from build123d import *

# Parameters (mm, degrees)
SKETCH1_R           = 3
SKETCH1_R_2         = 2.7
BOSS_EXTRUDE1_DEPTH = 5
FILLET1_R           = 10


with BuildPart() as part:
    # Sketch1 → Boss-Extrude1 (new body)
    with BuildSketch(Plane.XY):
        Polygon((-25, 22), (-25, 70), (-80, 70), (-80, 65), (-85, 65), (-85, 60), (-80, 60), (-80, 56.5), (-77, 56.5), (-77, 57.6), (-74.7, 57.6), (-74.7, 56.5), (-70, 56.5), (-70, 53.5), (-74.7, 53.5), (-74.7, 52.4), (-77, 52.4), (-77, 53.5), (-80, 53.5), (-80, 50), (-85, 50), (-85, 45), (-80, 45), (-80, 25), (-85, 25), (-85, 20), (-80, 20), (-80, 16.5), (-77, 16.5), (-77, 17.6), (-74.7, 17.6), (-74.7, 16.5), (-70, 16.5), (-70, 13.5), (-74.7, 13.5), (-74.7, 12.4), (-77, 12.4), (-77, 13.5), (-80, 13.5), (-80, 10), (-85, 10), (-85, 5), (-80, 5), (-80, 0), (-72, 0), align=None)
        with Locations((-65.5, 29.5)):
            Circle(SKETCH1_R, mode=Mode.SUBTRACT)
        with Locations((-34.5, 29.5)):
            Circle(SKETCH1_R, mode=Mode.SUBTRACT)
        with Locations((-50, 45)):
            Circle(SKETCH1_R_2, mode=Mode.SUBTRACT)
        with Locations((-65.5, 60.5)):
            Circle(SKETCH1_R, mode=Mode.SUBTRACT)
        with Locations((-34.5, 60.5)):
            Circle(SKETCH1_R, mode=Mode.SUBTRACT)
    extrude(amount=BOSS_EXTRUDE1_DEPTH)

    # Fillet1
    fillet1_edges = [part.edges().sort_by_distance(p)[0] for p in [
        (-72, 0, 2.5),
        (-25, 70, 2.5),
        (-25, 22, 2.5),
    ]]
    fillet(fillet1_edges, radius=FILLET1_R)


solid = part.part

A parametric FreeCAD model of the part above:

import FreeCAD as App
import Part
import Sketcher

V = App.Vector
Q = App.Units.Quantity


def edges_at(feature, points):
    """Names of the edges that pass closest to the given points."""
    edges = feature.Shape.Edges
    near = lambda p: min(range(len(edges)), key=lambda i: edges[i].distToShape(Part.Vertex(*p))[0])
    return sorted({f"Edge{near(p) + 1}" for p in points})

doc = App.newDocument("Part")
body = doc.addObject("PartDesign::Body", "Body")

sketch1 = body.newObject("Sketcher::SketchObject", "Sketch")
sketch1.AttachmentSupport = (doc.getObject("XY_Plane"), [""])
sketch1.MapMode = "FlatFace"
sketch1.addGeometry(Part.LineSegment(V(-25, 22, 0), V(-25, 70, 0)), False)
sketch1.addGeometry(Part.LineSegment(V(-25, 70, 0), V(-80, 70, 0)), False)
sketch1.addGeometry(Part.LineSegment(V(-80, 70, 0), V(-80, 65, 0)), False)
sketch1.addGeometry(Part.LineSegment(V(-80, 65, 0), V(-85, 65, 0)), False)
sketch1.addGeometry(Part.LineSegment(V(-85, 65, 0), V(-85, 60, 0)), False)
sketch1.addGeometry(Part.LineSegment(V(-85, 60, 0), V(-80, 60, 0)), False)
sketch1.addGeometry(Part.LineSegment(V(-80, 60, 0), V(-80, 56.5, 0)), False)
sketch1.addGeometry(Part.LineSegment(V(-80, 56.5, 0), V(-77, 56.5, 0)), False)
sketch1.addGeometry(Part.LineSegment(V(-77, 56.5, 0), V(-77, 57.6, 0)), False)
sketch1.addGeometry(Part.LineSegment(V(-77, 57.6, 0), V(-74.7, 57.6, 0)), False)
sketch1.addGeometry(Part.LineSegment(V(-74.7, 57.6, 0), V(-74.7, 56.5, 0)), False)
sketch1.addGeometry(Part.LineSegment(V(-74.7, 56.5, 0), V(-70, 56.5, 0)), False)
sketch1.addGeometry(Part.LineSegment(V(-70, 56.5, 0), V(-70, 53.5, 0)), False)
sketch1.addGeometry(Part.LineSegment(V(-70, 53.5, 0), V(-74.7, 53.5, 0)), False)
sketch1.addGeometry(Part.LineSegment(V(-74.7, 53.5, 0), V(-74.7, 52.4, 0)), False)
sketch1.addGeometry(Part.LineSegment(V(-74.7, 52.4, 0), V(-77, 52.4, 0)), False)
sketch1.addGeometry(Part.LineSegment(V(-77, 52.4, 0), V(-77, 53.5, 0)), False)
sketch1.addGeometry(Part.LineSegment(V(-77, 53.5, 0), V(-80, 53.5, 0)), False)
sketch1.addGeometry(Part.LineSegment(V(-80, 53.5, 0), V(-80, 50, 0)), False)
sketch1.addGeometry(Part.LineSegment(V(-80, 50, 0), V(-85, 50, 0)), False)
sketch1.addGeometry(Part.LineSegment(V(-85, 50, 0), V(-85, 45, 0)), False)
sketch1.addGeometry(Part.LineSegment(V(-85, 45, 0), V(-80, 45, 0)), False)
sketch1.addGeometry(Part.LineSegment(V(-80, 45, 0), V(-80, 25, 0)), False)
sketch1.addGeometry(Part.LineSegment(V(-80, 25, 0), V(-85, 25, 0)), False)
sketch1.addGeometry(Part.LineSegment(V(-85, 25, 0), V(-85, 20, 0)), False)
sketch1.addGeometry(Part.LineSegment(V(-85, 20, 0), V(-80, 20, 0)), False)
sketch1.addGeometry(Part.LineSegment(V(-80, 20, 0), V(-80, 16.5, 0)), False)
sketch1.addGeometry(Part.LineSegment(V(-80, 16.5, 0), V(-77, 16.5, 0)), False)
sketch1.addGeometry(Part.LineSegment(V(-77, 16.5, 0), V(-77, 17.6, 0)), False)
sketch1.addGeometry(Part.LineSegment(V(-77, 17.6, 0), V(-74.7, 17.6, 0)), False)
sketch1.addGeometry(Part.LineSegment(V(-74.7, 17.6, 0), V(-74.7, 16.5, 0)), False)
sketch1.addGeometry(Part.LineSegment(V(-74.7, 16.5, 0), V(-70, 16.5, 0)), False)
sketch1.addGeometry(Part.LineSegment(V(-70, 16.5, 0), V(-70, 13.5, 0)), False)
sketch1.addGeometry(Part.LineSegment(V(-70, 13.5, 0), V(-74.7, 13.5, 0)), False)
sketch1.addGeometry(Part.LineSegment(V(-74.7, 13.5, 0), V(-74.7, 12.4, 0)), False)
sketch1.addGeometry(Part.LineSegment(V(-74.7, 12.4, 0), V(-77, 12.4, 0)), False)
sketch1.addGeometry(Part.LineSegment(V(-77, 12.4, 0), V(-77, 13.5, 0)), False)
sketch1.addGeometry(Part.LineSegment(V(-77, 13.5, 0), V(-80, 13.5, 0)), False)
sketch1.addGeometry(Part.LineSegment(V(-80, 13.5, 0), V(-80, 10, 0)), False)
sketch1.addGeometry(Part.LineSegment(V(-80, 10, 0), V(-85, 10, 0)), False)
sketch1.addGeometry(Part.LineSegment(V(-85, 10, 0), V(-85, 5, 0)), False)
sketch1.addGeometry(Part.LineSegment(V(-85, 5, 0), V(-80, 5, 0)), False)
sketch1.addGeometry(Part.LineSegment(V(-80, 5, 0), V(-80, 0, 0)), False)
sketch1.addGeometry(Part.LineSegment(V(-80, 0, 0), V(-72, 0, 0)), False)
sketch1.addGeometry(Part.LineSegment(V(-72, 0, 0), V(-25, 22, 0)), False)
sketch1.addGeometry(Part.Circle(V(-65.5, 29.5, 0), V(0, 0, 1), 3), False)
sketch1.addGeometry(Part.Circle(V(-34.5, 29.5, 0), V(0, 0, 1), 3), False)
sketch1.addGeometry(Part.Circle(V(-65.5, 60.5, 0), V(0, 0, 1), 3), False)
sketch1.addGeometry(Part.Circle(V(-50, 45, 0), V(0, 0, 1), 2.7), False)
sketch1.addGeometry(Part.Circle(V(-34.5, 60.5, 0), V(0, 0, 1), 3), False)
sketch1.addConstraint(Sketcher.Constraint("Coincident", 0, 2, 1, 1))
sketch1.addConstraint(Sketcher.Constraint("Coincident", 1, 2, 2, 1))
sketch1.addConstraint(Sketcher.Constraint("Coincident", 2, 2, 3, 1))
sketch1.addConstraint(Sketcher.Constraint("Coincident", 3, 2, 4, 1))
sketch1.addConstraint(Sketcher.Constraint("Coincident", 4, 2, 5, 1))
sketch1.addConstraint(Sketcher.Constraint("Coincident", 5, 2, 6, 1))
sketch1.addConstraint(Sketcher.Constraint("Coincident", 6, 2, 7, 1))
sketch1.addConstraint(Sketcher.Constraint("Coincident", 7, 2, 8, 1))
sketch1.addConstraint(Sketcher.Constraint("Coincident", 8, 2, 9, 1))
sketch1.addConstraint(Sketcher.Constraint("Coincident", 9, 2, 10, 1))
sketch1.addConstraint(Sketcher.Constraint("Coincident", 10, 2, 11, 1))
sketch1.addConstraint(Sketcher.Constraint("Coincident", 11, 2, 12, 1))
sketch1.addConstraint(Sketcher.Constraint("Coincident", 12, 2, 13, 1))
sketch1.addConstraint(Sketcher.Constraint("Coincident", 13, 2, 14, 1))
sketch1.addConstraint(Sketcher.Constraint("Coincident", 14, 2, 15, 1))
sketch1.addConstraint(Sketcher.Constraint("Coincident", 15, 2, 16, 1))
sketch1.addConstraint(Sketcher.Constraint("Coincident", 16, 2, 17, 1))
sketch1.addConstraint(Sketcher.Constraint("Coincident", 17, 2, 18, 1))
sketch1.addConstraint(Sketcher.Constraint("Coincident", 18, 2, 19, 1))
sketch1.addConstraint(Sketcher.Constraint("Coincident", 19, 2, 20, 1))
sketch1.addConstraint(Sketcher.Constraint("Coincident", 20, 2, 21, 1))
sketch1.addConstraint(Sketcher.Constraint("Coincident", 21, 2, 22, 1))
sketch1.addConstraint(Sketcher.Constraint("Coincident", 22, 2, 23, 1))
sketch1.addConstraint(Sketcher.Constraint("Coincident", 23, 2, 24, 1))
sketch1.addConstraint(Sketcher.Constraint("Coincident", 24, 2, 25, 1))
sketch1.addConstraint(Sketcher.Constraint("Coincident", 25, 2, 26, 1))
sketch1.addConstraint(Sketcher.Constraint("Coincident", 26, 2, 27, 1))
sketch1.addConstraint(Sketcher.Constraint("Coincident", 27, 2, 28, 1))
sketch1.addConstraint(Sketcher.Constraint("Coincident", 28, 2, 29, 1))
sketch1.addConstraint(Sketcher.Constraint("Coincident", 29, 2, 30, 1))
sketch1.addConstraint(Sketcher.Constraint("Coincident", 30, 2, 31, 1))
sketch1.addConstraint(Sketcher.Constraint("Coincident", 31, 2, 32, 1))
sketch1.addConstraint(Sketcher.Constraint("Coincident", 32, 2, 33, 1))
sketch1.addConstraint(Sketcher.Constraint("Coincident", 33, 2, 34, 1))
sketch1.addConstraint(Sketcher.Constraint("Coincident", 34, 2, 35, 1))
sketch1.addConstraint(Sketcher.Constraint("Coincident", 35, 2, 36, 1))
sketch1.addConstraint(Sketcher.Constraint("Coincident", 36, 2, 37, 1))
sketch1.addConstraint(Sketcher.Constraint("Coincident", 37, 2, 38, 1))
sketch1.addConstraint(Sketcher.Constraint("Coincident", 38, 2, 39, 1))
sketch1.addConstraint(Sketcher.Constraint("Coincident", 39, 2, 40, 1))
sketch1.addConstraint(Sketcher.Constraint("Coincident", 40, 2, 41, 1))
sketch1.addConstraint(Sketcher.Constraint("Coincident", 41, 2, 42, 1))
sketch1.addConstraint(Sketcher.Constraint("Coincident", 42, 2, 43, 1))
sketch1.addConstraint(Sketcher.Constraint("Coincident", 43, 2, 44, 1))
sketch1.addConstraint(Sketcher.Constraint("Coincident", 44, 2, 0, 1))
sketch1.addConstraint(Sketcher.Constraint("Vertical", 0))
sketch1.addConstraint(Sketcher.Constraint("Horizontal", 1))
sketch1.addConstraint(Sketcher.Constraint("Vertical", 2))
sketch1.addConstraint(Sketcher.Constraint("Horizontal", 3))
sketch1.addConstraint(Sketcher.Constraint("Vertical", 4))
sketch1.addConstraint(Sketcher.Constraint("Horizontal", 5))
sketch1.addConstraint(Sketcher.Constraint("Vertical", 6))
sketch1.addConstraint(Sketcher.Constraint("Horizontal", 7))
sketch1.addConstraint(Sketcher.Constraint("Vertical", 8))
sketch1.addConstraint(Sketcher.Constraint("Horizontal", 9))
sketch1.addConstraint(Sketcher.Constraint("Vertical", 10))
sketch1.addConstraint(Sketcher.Constraint("Horizontal", 11))
sketch1.addConstraint(Sketcher.Constraint("Vertical", 12))
sketch1.addConstraint(Sketcher.Constraint("Horizontal", 13))
sketch1.addConstraint(Sketcher.Constraint("Vertical", 14))
sketch1.addConstraint(Sketcher.Constraint("Horizontal", 15))
sketch1.addConstraint(Sketcher.Constraint("Vertical", 16))
sketch1.addConstraint(Sketcher.Constraint("Horizontal", 17))
sketch1.addConstraint(Sketcher.Constraint("Vertical", 18))
sketch1.addConstraint(Sketcher.Constraint("Horizontal", 19))
sketch1.addConstraint(Sketcher.Constraint("Vertical", 20))
sketch1.addConstraint(Sketcher.Constraint("Horizontal", 21))
sketch1.addConstraint(Sketcher.Constraint("Vertical", 22))
sketch1.addConstraint(Sketcher.Constraint("Horizontal", 23))
sketch1.addConstraint(Sketcher.Constraint("Vertical", 24))
sketch1.addConstraint(Sketcher.Constraint("Horizontal", 25))
sketch1.addConstraint(Sketcher.Constraint("Vertical", 26))
sketch1.addConstraint(Sketcher.Constraint("Horizontal", 27))
sketch1.addConstraint(Sketcher.Constraint("Vertical", 28))
sketch1.addConstraint(Sketcher.Constraint("Horizontal", 29))
sketch1.addConstraint(Sketcher.Constraint("Vertical", 30))
sketch1.addConstraint(Sketcher.Constraint("Horizontal", 31))
sketch1.addConstraint(Sketcher.Constraint("Vertical", 32))
sketch1.addConstraint(Sketcher.Constraint("Horizontal", 33))
sketch1.addConstraint(Sketcher.Constraint("Vertical", 34))
sketch1.addConstraint(Sketcher.Constraint("Horizontal", 35))
sketch1.addConstraint(Sketcher.Constraint("Vertical", 36))
sketch1.addConstraint(Sketcher.Constraint("Horizontal", 37))
sketch1.addConstraint(Sketcher.Constraint("Vertical", 38))
sketch1.addConstraint(Sketcher.Constraint("Horizontal", 39))
sketch1.addConstraint(Sketcher.Constraint("Vertical", 40))
sketch1.addConstraint(Sketcher.Constraint("Horizontal", 41))
sketch1.addConstraint(Sketcher.Constraint("Vertical", 42))
sketch1.addConstraint(Sketcher.Constraint("Horizontal", 43))
sketch1.addConstraint(Sketcher.Constraint("Equal", 45, 46))
sketch1.addConstraint(Sketcher.Constraint("Equal", 46, 47))
sketch1.addConstraint(Sketcher.Constraint("Equal", 47, 49))
sketch1.addConstraint(Sketcher.Constraint("PointOnObject", 42, 2, -1))
sketch1.addConstraint(Sketcher.Constraint("Horizontal", 45, 3, 46, 3))
sketch1.addConstraint(Sketcher.Constraint("Horizontal", 47, 3, 49, 3))
sketch1.addConstraint(Sketcher.Constraint("Horizontal", 7, 2, 10, 2))
sketch1.addConstraint(Sketcher.Constraint("Horizontal", 13, 2, 16, 2))
sketch1.addConstraint(Sketcher.Constraint("Horizontal", 48, 3, 20, 2))
sketch1.addConstraint(Sketcher.Constraint("Horizontal", 27, 2, 30, 2))
sketch1.addConstraint(Sketcher.Constraint("Horizontal", 33, 2, 36, 2))
sketch1.addConstraint(Sketcher.Constraint("Vertical", 45, 3, 47, 3))
sketch1.addConstraint(Sketcher.Constraint("Vertical", 46, 3, 49, 3))
sketch1.addConstraint(Sketcher.Constraint("Vertical", 2, 2, 5, 2))
sketch1.addConstraint(Sketcher.Constraint("Vertical", 10, 2, 13, 2))
sketch1.addConstraint(Sketcher.Constraint("Vertical", 8, 2, 15, 2))
sketch1.addConstraint(Sketcher.Constraint("Vertical", 6, 2, 17, 2))
sketch1.addConstraint(Sketcher.Constraint("Vertical", 4, 2, 19, 2))
sketch1.addConstraint(Sketcher.Constraint("Vertical", 18, 2, 21, 2))
sketch1.addConstraint(Sketcher.Constraint("Vertical", 20, 2, 23, 2))
sketch1.addConstraint(Sketcher.Constraint("Vertical", 22, 2, 25, 2))
sketch1.addConstraint(Sketcher.Constraint("Vertical", 16, 2, 27, 2))
sketch1.addConstraint(Sketcher.Constraint("Vertical", 14, 2, 29, 2))
sketch1.addConstraint(Sketcher.Constraint("Vertical", 12, 2, 31, 2))
sketch1.addConstraint(Sketcher.Constraint("Vertical", 30, 2, 33, 2))
sketch1.addConstraint(Sketcher.Constraint("Vertical", 28, 2, 35, 2))
sketch1.addConstraint(Sketcher.Constraint("Vertical", 26, 2, 37, 2))
sketch1.addConstraint(Sketcher.Constraint("Vertical", 24, 2, 39, 2))
sketch1.addConstraint(Sketcher.Constraint("Vertical", 38, 2, 41, 2))
sketch1.addConstraint(Sketcher.Constraint("Equal", 41, 2))
sketch1.addConstraint(Sketcher.Constraint("Equal", 2, 4))
sketch1.addConstraint(Sketcher.Constraint("Equal", 37, 12))
sketch1.addConstraint(Sketcher.Constraint("Equal", 10, 14))
sketch1.addConstraint(Sketcher.Constraint("Equal", 6, 18))
sketch1.addConstraint(Sketcher.Constraint("Equal", 4, 20))
sketch1.addConstraint(Sketcher.Constraint("Equal", 20, 24))
sketch1.addConstraint(Sketcher.Constraint("Equal", 18, 26))
sketch1.addConstraint(Sketcher.Constraint("Equal", 16, 28))
sketch1.addConstraint(Sketcher.Constraint("Equal", 12, 32))
sketch1.addConstraint(Sketcher.Constraint("Equal", 30, 34))
sketch1.addConstraint(Sketcher.Constraint("Equal", 26, 38))
sketch1.addConstraint(Sketcher.Constraint("Equal", 24, 40))
sketch1.addConstraint(Sketcher.Constraint("Equal", 40, 42))
sketch1.addConstraint(Sketcher.Constraint("Diameter", 45, Q("6 mm")))
sketch1.addConstraint(Sketcher.Constraint("Diameter", 48, Q("5.4 mm")))
sketch1.addConstraint(Sketcher.Constraint("DistanceX", 1, 2, 1, 1, Q("55 mm")))
sketch1.addConstraint(Sketcher.Constraint("DistanceX", 3, 2, 3, 1, Q("5 mm")))
sketch1.addConstraint(Sketcher.Constraint("DistanceX", 7, 1, 7, 2, Q("3 mm")))
sketch1.addConstraint(Sketcher.Constraint("DistanceX", 43, 1, 43, 2, Q("8 mm")))
sketch1.addConstraint(Sketcher.Constraint("DistanceY", 0, 1, 0, 2, Q("48 mm")))
sketch1.addConstraint(Sketcher.Constraint("DistanceY", 22, 2, 22, 1, Q("20 mm")))
sketch1.addConstraint(Sketcher.Constraint("DistanceX", 9, 1, 9, 2, Q("2.3 mm")))
sketch1.addConstraint(Sketcher.Constraint("DistanceX", 11, 1, 11, 2, Q("4.7 mm")))
sketch1.addConstraint(Sketcher.Constraint("DistanceY", 6, 2, 6, 1, Q("3.5 mm")))
sketch1.addConstraint(Sketcher.Constraint("DistanceY", 8, 1, 8, 2, Q("1.1 mm")))
sketch1.addConstraint(Sketcher.Constraint("DistanceX", 48, 3, -1, 1, Q("50 mm")))
sketch1.addConstraint(Sketcher.Constraint("DistanceX", 0, 2, -1, 1, Q("25 mm")))
sketch1.addConstraint(Sketcher.Constraint("DistanceX", 45, 3, 46, 3, Q("31 mm")))
sketch1.addConstraint(Sketcher.Constraint("DistanceY", 45, 3, 47, 3, Q("31 mm")))
sketch1.addConstraint(Sketcher.Constraint("DistanceY", 11, 2, 47, 3, Q("4 mm")))
sketch1.addConstraint(Sketcher.Constraint("DistanceX", 45, 3, -1, 1, Q("65.5 mm")))
pad1 = body.newObject("PartDesign::Pad", "Pad")
pad1.Profile = sketch1
pad1.Length = 5
doc.recompute()

fillet = body.newObject("PartDesign::Fillet", "Fillet")
fillet.Base = (pad1, edges_at(pad1, [(-72, 0, 2.5), (-25, 70, 2.5), (-25, 22, 2.5)]))
fillet.Radius = 10

doc.recompute()
